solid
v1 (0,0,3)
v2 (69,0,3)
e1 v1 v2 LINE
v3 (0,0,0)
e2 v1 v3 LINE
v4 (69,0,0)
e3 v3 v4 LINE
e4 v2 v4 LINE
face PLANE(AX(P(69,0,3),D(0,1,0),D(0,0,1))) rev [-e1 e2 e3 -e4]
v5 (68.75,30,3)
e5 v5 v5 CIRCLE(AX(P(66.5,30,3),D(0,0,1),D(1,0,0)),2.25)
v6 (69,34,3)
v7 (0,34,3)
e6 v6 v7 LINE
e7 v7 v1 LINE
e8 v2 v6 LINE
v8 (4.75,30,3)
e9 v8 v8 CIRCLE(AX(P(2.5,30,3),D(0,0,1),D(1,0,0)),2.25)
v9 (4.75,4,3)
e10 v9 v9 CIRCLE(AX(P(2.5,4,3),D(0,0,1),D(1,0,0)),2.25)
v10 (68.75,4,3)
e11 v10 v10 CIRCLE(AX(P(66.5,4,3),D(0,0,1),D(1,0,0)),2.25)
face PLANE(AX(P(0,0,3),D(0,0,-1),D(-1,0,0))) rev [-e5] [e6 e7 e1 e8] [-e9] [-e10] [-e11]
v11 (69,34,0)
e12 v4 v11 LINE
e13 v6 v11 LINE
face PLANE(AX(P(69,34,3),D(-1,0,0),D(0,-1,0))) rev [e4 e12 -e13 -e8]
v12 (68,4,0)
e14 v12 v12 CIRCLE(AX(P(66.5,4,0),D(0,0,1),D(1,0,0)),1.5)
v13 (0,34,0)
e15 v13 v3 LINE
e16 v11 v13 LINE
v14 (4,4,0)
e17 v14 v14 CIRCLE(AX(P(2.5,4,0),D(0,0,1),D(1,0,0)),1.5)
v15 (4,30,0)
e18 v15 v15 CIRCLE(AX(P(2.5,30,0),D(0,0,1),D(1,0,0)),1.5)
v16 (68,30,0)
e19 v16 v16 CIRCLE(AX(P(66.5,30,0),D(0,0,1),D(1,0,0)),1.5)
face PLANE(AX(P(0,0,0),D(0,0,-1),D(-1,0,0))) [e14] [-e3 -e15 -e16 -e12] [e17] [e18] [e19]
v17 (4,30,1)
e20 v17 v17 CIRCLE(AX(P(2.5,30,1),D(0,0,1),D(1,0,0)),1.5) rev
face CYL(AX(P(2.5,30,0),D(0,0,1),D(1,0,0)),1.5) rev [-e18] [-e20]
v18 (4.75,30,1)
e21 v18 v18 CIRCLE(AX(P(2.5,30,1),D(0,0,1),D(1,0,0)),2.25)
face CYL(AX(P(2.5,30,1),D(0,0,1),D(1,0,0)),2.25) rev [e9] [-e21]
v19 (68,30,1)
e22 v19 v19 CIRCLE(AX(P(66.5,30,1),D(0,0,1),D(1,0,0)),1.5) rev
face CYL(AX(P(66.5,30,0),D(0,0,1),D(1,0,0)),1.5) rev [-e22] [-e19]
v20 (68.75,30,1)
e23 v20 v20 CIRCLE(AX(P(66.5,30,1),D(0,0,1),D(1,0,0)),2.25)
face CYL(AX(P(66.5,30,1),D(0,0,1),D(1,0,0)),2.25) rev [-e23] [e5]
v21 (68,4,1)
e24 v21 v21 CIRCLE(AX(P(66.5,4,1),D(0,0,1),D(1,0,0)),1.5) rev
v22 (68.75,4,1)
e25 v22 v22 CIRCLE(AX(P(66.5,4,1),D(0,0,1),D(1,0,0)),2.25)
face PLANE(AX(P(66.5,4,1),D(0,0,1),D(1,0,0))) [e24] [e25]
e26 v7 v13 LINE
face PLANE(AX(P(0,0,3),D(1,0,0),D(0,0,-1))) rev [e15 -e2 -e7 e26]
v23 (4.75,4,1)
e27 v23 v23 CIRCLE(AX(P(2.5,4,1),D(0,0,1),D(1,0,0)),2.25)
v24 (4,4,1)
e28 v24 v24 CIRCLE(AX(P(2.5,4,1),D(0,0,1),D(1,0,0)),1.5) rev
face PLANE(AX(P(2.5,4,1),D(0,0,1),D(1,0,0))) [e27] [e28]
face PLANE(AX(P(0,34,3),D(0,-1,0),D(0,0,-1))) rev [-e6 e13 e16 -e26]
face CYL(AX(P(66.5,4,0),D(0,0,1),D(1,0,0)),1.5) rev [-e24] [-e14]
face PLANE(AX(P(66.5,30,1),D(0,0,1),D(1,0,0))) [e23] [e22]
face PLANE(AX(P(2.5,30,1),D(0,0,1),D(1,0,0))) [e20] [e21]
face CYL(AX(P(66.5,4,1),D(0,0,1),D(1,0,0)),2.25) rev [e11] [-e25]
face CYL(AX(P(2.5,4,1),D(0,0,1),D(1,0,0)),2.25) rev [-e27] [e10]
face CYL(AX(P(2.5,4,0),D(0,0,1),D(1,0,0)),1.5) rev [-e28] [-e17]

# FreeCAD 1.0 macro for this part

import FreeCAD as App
import Part
import Sketcher
Q = App.Units.Quantity


def add_polygon(sketch, points):
    """Adds a closed chain of lines whose ends are joined by coincident constraints."""
    first, n = sketch.GeometryCount, len(points)
    for a, b in zip(points, points[1:] + points[:1]):
        sketch.addGeometry(Part.LineSegment(App.Vector(*a, 0), App.Vector(*b, 0)), False)
    for i in range(n):
        sketch.addConstraint(Sketcher.Constraint("Coincident", first + i, 2, first + (i + 1) % n, 1))

doc = App.newDocument("Part")
body = doc.addObject("PartDesign::Body", "Body")

# Sketch on XY plane
sketch1 = doc.addObject("Sketcher::SketchObject", "Sketch")
body.addObject(sketch1)
sketch1.AttachmentSupport = (doc.XY_Plane, [""])
sketch1.MapMode = "FlatFace"
add_polygon(sketch1, [(0, 34), (0, 0), (69, 0), (69, 34)])  # lines 0-3
sketch1.addConstraint(Sketcher.Constraint("Vertical", 0))
sketch1.addConstraint(Sketcher.Constraint("Horizontal", 1))
sketch1.addConstraint(Sketcher.Constraint("Vertical", 2))
sketch1.addConstraint(Sketcher.Constraint("Horizontal", 3))
sketch1.addConstraint(Sketcher.Constraint("Coincident", 0, 2, -1, 1))
sketch1.addConstraint(Sketcher.Constraint("DistanceX", 1, 1, 1, 2, Q("69 mm")))
sketch1.addConstraint(Sketcher.Constraint("DistanceY", 0, 2, 0, 1, Q("34 mm")))
pad1 = doc.addObject("PartDesign::Pad", "Pad")
body.addObject(pad1)
pad1.Profile = sketch1
pad1.Length = 3

# Sketch on XY plane
sketch2 = doc.addObject("Sketcher::SketchObject", "Sketch001")
body.addObject(sketch2)
sketch2.AttachmentSupport = (doc.XY_Plane, [""])
sketch2.MapMode = "FlatFace"
sketch2.AttachmentOffset = App.Placement(App.Vector(0, 0, 3), App.Rotation())
sketch2.addGeometry(Part.Circle(App.Vector(2.5, 30, 0), App.Vector(0, 0, 1), 1.5), False)
sketch2.addGeometry(Part.Circle(App.Vector(2.5, 4, 0), App.Vector(0, 0, 1), 1.5), False)
sketch2.addGeometry(Part.Circle(App.Vector(66.5, 4, 0), App.Vector(0, 0, 1), 1.5), False)
sketch2.addGeometry(Part.Circle(App.Vector(66.5, 30, 0), App.Vector(0, 0, 1), 1.5), False)
sketch2.addConstraint(Sketcher.Constraint("Equal", 0, 1))
sketch2.addConstraint(Sketcher.Constraint("Equal", 1, 2))
sketch2.addConstraint(Sketcher.Constraint("Equal", 2, 3))
sketch2.addConstraint(Sketcher.Constraint("Horizontal", 1, 3, 2, 3))
sketch2.addConstraint(Sketcher.Constraint("Horizontal", 0, 3, 3, 3))
sketch2.addConstraint(Sketcher.Constraint("Vertical", 0, 3, 1, 3))
sketch2.addConstraint(Sketcher.Constraint("Vertical", 2, 3, 3, 3))
sketch2.addConstraint(Sketcher.Constraint("Diameter", 0, Q("3 mm")))
sketch2.addConstraint(Sketcher.Constraint("DistanceY", -1, 1, 0, 3, Q("30 mm")))
sketch2.addConstraint(Sketcher.Constraint("DistanceY", -1, 1, 1, 3, Q("4 mm")))
sketch2.addConstraint(Sketcher.Constraint("DistanceX", 1, 3, 2, 3, Q("64 mm")))
sketch2.addConstraint(Sketcher.Constraint("DistanceX", -1, 1, 0, 3, Q("2.5 mm")))
pocket1 = doc.addObject("PartDesign::Pocket", "Pocket")
body.addObject(pocket1)
pocket1.Profile = sketch2
pocket1.Length = 3

# Sketch on XY plane
sketch3 = doc.addObject("Sketcher::SketchObject", "Sketch002")
body.addObject(sketch3)
sketch3.AttachmentSupport = (doc.XY_Plane, [""])
sketch3.MapMode = "FlatFace"
sketch3.AttachmentOffset = App.Placement(App.Vector(0, 0, 3), App.Rotation())
sketch3.addGeometry(Part.Circle(App.Vector(2.5, 30, 0), App.Vector(0, 0, 1), 2.25), False)
sketch3.addGeometry(Part.Circle(App.Vector(66.5, 30, 0), App.Vector(0, 0, 1), 2.25), False)
sketch3.addGeometry(Part.Circle(App.Vector(2.5, 4, 0), App.Vector(0, 0, 1), 2.25), False)
sketch3.addGeometry(Part.Circle(App.Vector(66.5, 4, 0), App.Vector(0, 0, 1), 2.25), False)
sketch3.addConstraint(Sketcher.Constraint("Equal", 0, 1))
sketch3.addConstraint(Sketcher.Constraint("Equal", 1, 2))
sketch3.addConstraint(Sketcher.Constraint("Equal", 2, 3))
sketch3.addConstraint(Sketcher.Constraint("Horizontal", 0, 3, 1, 3))
sketch3.addConstraint(Sketcher.Constraint("Horizontal", 2, 3, 3, 3))
sketch3.addConstraint(Sketcher.Constraint("Vertical", 0, 3, 2, 3))
sketch3.addConstraint(Sketcher.Constraint("Vertical", 1, 3, 3, 3))
sketch3.addConstraint(Sketcher.Constraint("Diameter", 0, Q("4.5 mm")))
sketch3.addConstraint(Sketcher.Constraint("DistanceY", -1, 1, 0, 3, Q("30 mm")))
sketch3.addConstraint(Sketcher.Constraint("DistanceY", -1, 1, 2, 3, Q("4 mm")))
sketch3.addConstraint(Sketcher.Constraint("DistanceX", 0, 3, 1, 3, Q("64 mm")))
sketch3.addConstraint(Sketcher.Constraint("DistanceX", -1, 1, 0, 3, Q("2.5 mm")))
pocket2 = doc.addObject("PartDesign::Pocket", "Pocket001")
body.addObject(pocket2)
pocket2.Profile = sketch3
pocket2.Length = 2

doc.recompute()
